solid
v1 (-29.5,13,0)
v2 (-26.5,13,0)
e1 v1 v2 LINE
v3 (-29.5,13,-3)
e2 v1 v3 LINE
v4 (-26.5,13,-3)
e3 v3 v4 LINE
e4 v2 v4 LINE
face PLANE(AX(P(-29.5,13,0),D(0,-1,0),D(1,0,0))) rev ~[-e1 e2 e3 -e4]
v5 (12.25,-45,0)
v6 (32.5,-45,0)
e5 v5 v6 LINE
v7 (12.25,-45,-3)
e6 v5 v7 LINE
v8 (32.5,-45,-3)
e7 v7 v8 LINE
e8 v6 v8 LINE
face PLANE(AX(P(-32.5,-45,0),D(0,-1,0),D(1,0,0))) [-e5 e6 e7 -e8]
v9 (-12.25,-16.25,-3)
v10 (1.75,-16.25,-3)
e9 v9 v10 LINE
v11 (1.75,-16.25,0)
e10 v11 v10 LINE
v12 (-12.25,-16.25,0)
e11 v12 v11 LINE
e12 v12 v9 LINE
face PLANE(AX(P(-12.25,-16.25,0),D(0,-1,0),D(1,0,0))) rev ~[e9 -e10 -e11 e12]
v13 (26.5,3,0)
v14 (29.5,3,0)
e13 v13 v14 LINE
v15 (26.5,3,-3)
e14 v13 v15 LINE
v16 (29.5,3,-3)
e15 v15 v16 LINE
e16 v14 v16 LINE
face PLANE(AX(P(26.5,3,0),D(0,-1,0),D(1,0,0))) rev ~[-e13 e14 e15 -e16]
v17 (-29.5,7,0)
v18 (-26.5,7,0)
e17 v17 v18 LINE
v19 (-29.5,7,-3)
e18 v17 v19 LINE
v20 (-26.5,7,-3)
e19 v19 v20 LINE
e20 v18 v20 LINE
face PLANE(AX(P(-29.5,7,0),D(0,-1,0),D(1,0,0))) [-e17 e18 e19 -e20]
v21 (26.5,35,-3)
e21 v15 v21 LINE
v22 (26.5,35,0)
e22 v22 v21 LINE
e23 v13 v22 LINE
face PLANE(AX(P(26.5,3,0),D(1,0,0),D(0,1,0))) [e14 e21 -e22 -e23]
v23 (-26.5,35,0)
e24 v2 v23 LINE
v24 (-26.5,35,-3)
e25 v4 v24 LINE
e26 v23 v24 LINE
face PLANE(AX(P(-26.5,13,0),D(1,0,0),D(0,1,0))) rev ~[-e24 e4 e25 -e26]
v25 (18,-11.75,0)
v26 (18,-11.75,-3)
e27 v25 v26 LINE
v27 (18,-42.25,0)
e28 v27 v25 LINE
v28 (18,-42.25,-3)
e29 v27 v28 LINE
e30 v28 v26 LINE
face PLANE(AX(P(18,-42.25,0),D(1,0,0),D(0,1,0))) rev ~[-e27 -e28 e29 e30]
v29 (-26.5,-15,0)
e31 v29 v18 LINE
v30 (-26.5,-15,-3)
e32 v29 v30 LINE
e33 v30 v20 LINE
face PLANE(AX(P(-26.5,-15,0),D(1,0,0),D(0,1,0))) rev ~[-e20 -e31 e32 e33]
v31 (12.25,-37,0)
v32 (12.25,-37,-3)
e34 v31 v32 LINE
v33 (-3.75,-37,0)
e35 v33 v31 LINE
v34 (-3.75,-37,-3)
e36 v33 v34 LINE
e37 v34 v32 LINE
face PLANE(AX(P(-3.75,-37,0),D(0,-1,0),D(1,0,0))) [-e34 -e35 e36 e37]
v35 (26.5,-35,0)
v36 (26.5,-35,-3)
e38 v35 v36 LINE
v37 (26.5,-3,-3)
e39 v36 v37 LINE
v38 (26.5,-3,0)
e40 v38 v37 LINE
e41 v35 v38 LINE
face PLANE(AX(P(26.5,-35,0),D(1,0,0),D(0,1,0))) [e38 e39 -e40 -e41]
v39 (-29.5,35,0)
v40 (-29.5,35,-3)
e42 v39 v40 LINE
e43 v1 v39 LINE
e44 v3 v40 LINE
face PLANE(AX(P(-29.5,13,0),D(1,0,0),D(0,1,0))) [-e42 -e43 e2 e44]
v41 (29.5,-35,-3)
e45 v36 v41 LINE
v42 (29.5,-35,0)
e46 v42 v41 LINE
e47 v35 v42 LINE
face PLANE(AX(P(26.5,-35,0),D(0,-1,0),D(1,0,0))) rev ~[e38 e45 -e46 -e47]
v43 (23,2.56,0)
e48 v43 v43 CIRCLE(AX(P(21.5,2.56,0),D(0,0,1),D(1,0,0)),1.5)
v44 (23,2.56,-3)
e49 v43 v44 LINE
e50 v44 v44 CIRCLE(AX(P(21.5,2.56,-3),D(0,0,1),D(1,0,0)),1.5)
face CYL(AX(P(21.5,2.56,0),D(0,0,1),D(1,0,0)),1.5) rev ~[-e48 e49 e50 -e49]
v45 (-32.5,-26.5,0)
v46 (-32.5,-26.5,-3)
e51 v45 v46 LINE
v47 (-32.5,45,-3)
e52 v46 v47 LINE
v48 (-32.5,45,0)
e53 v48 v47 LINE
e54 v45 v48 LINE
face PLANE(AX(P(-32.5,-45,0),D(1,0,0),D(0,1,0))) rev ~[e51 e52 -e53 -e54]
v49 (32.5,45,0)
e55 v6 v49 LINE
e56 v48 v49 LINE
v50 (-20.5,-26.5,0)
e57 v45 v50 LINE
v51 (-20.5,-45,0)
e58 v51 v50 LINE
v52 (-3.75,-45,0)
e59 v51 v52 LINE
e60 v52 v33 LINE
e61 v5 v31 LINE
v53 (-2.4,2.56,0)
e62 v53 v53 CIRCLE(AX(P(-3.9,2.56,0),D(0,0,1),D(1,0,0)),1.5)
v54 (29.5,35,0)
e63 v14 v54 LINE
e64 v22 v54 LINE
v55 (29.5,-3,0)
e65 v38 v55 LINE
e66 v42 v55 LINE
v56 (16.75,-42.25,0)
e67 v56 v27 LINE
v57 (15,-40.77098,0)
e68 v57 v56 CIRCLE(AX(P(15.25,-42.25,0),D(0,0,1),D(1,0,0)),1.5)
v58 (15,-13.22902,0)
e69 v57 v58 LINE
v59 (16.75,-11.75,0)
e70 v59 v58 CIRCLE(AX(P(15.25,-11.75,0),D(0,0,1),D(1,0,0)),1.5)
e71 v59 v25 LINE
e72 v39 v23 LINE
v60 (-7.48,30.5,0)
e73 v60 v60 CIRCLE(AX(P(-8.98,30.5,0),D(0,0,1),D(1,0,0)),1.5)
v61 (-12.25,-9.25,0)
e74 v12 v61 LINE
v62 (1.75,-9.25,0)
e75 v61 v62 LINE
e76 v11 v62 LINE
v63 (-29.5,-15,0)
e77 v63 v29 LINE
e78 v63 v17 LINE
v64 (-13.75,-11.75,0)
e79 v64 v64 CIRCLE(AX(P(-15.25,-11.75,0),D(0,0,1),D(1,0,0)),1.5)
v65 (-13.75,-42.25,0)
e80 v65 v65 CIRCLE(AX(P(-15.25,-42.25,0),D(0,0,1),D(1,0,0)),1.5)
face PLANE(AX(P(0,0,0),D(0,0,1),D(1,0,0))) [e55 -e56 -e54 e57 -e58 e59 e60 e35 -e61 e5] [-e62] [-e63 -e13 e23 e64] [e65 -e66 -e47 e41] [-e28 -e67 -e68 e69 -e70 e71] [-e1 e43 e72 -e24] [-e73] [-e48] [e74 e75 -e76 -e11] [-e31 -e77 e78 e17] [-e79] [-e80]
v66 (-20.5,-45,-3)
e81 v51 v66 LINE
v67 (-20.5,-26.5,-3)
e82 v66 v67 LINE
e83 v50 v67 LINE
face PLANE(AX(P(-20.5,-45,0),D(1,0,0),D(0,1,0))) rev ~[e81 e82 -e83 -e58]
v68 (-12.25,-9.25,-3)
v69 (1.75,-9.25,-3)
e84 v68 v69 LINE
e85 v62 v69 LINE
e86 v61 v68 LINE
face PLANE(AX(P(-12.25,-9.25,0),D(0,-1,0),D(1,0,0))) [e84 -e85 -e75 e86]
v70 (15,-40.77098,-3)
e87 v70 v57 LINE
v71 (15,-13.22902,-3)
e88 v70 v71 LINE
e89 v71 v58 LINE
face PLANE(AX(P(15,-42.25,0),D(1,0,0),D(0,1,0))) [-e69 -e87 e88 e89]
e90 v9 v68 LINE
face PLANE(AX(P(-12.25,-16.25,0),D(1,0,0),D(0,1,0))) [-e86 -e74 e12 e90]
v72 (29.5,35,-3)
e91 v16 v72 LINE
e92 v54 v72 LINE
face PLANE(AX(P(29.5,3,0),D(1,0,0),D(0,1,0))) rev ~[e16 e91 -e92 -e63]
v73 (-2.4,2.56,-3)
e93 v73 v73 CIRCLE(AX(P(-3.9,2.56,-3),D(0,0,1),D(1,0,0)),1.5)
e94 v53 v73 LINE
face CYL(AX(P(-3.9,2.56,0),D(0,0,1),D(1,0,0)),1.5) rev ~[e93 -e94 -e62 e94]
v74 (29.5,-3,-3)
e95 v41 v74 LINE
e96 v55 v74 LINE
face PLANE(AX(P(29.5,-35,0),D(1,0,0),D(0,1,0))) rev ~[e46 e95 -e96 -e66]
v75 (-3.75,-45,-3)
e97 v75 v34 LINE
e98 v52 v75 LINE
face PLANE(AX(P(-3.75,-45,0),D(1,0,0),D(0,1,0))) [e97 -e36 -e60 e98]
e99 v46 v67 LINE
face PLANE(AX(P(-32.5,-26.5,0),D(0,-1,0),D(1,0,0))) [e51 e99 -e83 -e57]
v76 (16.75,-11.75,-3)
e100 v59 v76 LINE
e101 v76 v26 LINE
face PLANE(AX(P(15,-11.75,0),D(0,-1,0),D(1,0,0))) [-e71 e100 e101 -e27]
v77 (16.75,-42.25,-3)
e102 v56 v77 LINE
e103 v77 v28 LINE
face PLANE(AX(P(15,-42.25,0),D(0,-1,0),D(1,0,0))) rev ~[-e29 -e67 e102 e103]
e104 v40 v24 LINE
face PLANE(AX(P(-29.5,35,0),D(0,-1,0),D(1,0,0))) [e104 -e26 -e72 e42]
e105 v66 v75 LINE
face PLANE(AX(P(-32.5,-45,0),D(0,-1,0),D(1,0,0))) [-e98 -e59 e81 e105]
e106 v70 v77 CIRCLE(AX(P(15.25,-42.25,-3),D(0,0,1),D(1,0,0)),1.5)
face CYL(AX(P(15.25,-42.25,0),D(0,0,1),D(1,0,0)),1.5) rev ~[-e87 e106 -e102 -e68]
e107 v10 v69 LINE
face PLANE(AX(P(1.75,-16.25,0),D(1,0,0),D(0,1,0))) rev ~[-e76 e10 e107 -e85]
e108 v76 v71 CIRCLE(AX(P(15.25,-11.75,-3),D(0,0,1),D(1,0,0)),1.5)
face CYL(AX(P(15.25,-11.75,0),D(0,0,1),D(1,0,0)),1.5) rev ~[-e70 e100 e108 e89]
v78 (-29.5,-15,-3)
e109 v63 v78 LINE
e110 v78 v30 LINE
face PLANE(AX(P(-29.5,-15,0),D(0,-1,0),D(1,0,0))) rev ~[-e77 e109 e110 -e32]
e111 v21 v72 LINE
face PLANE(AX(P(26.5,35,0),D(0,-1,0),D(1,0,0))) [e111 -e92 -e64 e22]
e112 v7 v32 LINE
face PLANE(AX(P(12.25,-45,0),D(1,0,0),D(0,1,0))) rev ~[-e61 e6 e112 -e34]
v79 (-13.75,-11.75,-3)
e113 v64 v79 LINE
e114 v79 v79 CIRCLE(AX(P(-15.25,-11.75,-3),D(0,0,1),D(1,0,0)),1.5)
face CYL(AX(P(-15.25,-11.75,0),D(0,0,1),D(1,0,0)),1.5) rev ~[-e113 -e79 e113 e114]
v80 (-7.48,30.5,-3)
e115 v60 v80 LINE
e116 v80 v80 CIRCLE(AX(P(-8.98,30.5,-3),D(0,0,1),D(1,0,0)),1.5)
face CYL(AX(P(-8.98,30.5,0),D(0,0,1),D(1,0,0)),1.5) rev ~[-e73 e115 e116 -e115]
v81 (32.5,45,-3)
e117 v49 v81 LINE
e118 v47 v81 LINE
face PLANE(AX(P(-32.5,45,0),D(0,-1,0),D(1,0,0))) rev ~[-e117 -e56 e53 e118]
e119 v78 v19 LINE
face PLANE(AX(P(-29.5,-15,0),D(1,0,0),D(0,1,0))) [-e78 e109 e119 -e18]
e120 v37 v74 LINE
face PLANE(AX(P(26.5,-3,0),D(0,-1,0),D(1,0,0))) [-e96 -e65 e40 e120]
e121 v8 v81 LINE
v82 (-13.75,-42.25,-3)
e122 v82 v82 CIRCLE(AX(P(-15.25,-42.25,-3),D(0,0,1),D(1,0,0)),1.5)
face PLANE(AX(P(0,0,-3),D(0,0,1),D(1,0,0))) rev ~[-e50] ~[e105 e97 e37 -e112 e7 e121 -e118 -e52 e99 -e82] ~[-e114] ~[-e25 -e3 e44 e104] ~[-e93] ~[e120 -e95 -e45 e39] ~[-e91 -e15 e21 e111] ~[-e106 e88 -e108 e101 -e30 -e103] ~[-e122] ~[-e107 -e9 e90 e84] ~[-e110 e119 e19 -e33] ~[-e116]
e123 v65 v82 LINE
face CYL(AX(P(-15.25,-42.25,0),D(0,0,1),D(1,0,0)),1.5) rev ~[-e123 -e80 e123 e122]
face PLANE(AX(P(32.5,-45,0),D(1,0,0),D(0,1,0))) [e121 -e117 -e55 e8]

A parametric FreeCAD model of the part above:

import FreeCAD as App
import Part
import Sketcher


def add_polygon(sketch, points):
    """Adds a closed chain of lines whose ends are joined by coincident constraints."""
    first, n = sketch.GeometryCount, len(points)
    for a, b in zip(points, points[1:] + points[:1]):
        sketch.addGeometry(Part.LineSegment(App.Vector(*a, 0), App.Vector(*b, 0)), False)
    for i in range(n):
        sketch.addConstraint(Sketcher.Constraint("Coincident", first + i, 2, first + (i + 1) % n, 1))

doc = App.newDocument("Part")
body = doc.addObject("PartDesign::Body", "Body")

# Sketch on XY plane
sketch1 = body.newObject("Sketcher::SketchObject", "Sketch")
sketch1.AttachmentSupport = (doc.getObject("XY_Plane"), [""])
sketch1.MapMode = "FlatFace"
add_polygon(sketch1, [(-32.5, 45), (-32.5, -45), (32.5, -45), (32.5, 45)])  # lines 0-3
sketch1.addConstraint(Sketcher.Constraint("Vertical", 0))
sketch1.addConstraint(Sketcher.Constraint("Horizontal", 1))
sketch1.addConstraint(Sketcher.Constraint("Vertical", 2))
sketch1.addConstraint(Sketcher.Constraint("Horizontal", 3))
sketch1.addConstraint(Sketcher.Constraint("Symmetric", 0, 2, 2, 2, -1, 1))
sketch1.addConstraint(Sketcher.Constraint("DistanceX", 1, 1, 1, 2, 65.0))
sketch1.addConstraint(Sketcher.Constraint("DistanceY", 0, 2, 0, 1, 90.0))
pad1 = body.newObject("PartDesign::Pad", "Pad")
pad1.Profile = sketch1
pad1.Length = 3
pad1.Reversed = True

# Sketch on XY plane
sketch2 = body.newObject("Sketcher::SketchObject", "Sketch001")
sketch2.AttachmentSupport = (doc.getObject("XY_Plane"), [""])
sketch2.MapMode = "FlatFace"
sketch2.addGeometry(Part.Circle(App.Vector(-8.98, 30.5, 0), App.Vector(0, 0, 1), 1.5), False)
sketch2.addGeometry(Part.Circle(App.Vector(-3.9, 2.56, 0), App.Vector(0, 0, 1), 1.5), False)
sketch2.addGeometry(Part.Circle(App.Vector(21.5, 2.56, 0), App.Vector(0, 0, 1), 1.5), False)
sketch2.addConstraint(Sketcher.Constraint("Equal", 0, 1))
sketch2.addConstraint(Sketcher.Constraint("Equal", 1, 2))
sketch2.addConstraint(Sketcher.Constraint("Horizontal", 1, 3, 2, 3))
sketch2.addConstraint(Sketcher.Constraint("Diameter", 0, 3.0))
sketch2.addConstraint(Sketcher.Constraint("DistanceY", -1, 1, 0, 3, 30.5))
sketch2.addConstraint(Sketcher.Constraint("DistanceX", 1, 3, -1, 1, 3.9))
sketch2.addConstraint(Sketcher.Constraint("DistanceX", -1, 1, 2, 3, 21.5))
sketch2.addConstraint(Sketcher.Constraint("DistanceX", 0, 3, -1, 1, 8.98))
sketch2.addConstraint(Sketcher.Constraint("DistanceY", -1, 1, 1, 3, 2.56))
pocket1 = body.newObject("PartDesign::Pocket", "Pocket")
pocket1.Profile = sketch2
pocket1.Length = 3

# Sketch on XY plane
sketch3 = body.newObject("Sketcher::SketchObject", "Sketch002")
sketch3.AttachmentSupport = (doc.getObject("XY_Plane"), [""])
sketch3.MapMode = "FlatFace"
sketch3.addGeometry(Part.Circle(App.Vector(-15.25, -42.25, 0), App.Vector(0, 0, 1), 1.5), False)
sketch3.addGeometry(Part.Circle(App.Vector(-15.25, -11.75, 0), App.Vector(0, 0, 1), 1.5), False)
sketch3.addGeometry(Part.Circle(App.Vector(15.25, -42.25, 0), App.Vector(0, 0, 1), 1.5), False)
sketch3.addGeometry(Part.Circle(App.Vector(15.25, -11.75, 0), App.Vector(0, 0, 1), 1.5), False)
sketch3.addConstraint(Sketcher.Constraint("Equal", 0, 1))
sketch3.addConstraint(Sketcher.Constraint("Equal", 1, 2))
sketch3.addConstraint(Sketcher.Constraint("Equal", 2, 3))
sketch3.addConstraint(Sketcher.Constraint("Symmetric", 0, 3, 2, 3, -2))
sketch3.addConstraint(Sketcher.Constraint("Symmetric", 1, 3, 3, 3, -2))
sketch3.addConstraint(Sketcher.Constraint("Vertical", 0, 3, 1, 3))
sketch3.addConstraint(Sketcher.Constraint("Diameter", 0, 3.0))
sketch3.addConstraint(Sketcher.Constraint("DistanceY", 0, 3, 1, 3, 30.5))
sketch3.addConstraint(Sketcher.Constraint("DistanceX", 0, 3, 2, 3, 30.5))
sketch3.addConstraint(Sketcher.Constraint("DistanceY", 0, 3, -1, 1, 42.25))
pocket2 = body.newObject("PartDesign::Pocket", "Pocket001")
pocket2.Profile = sketch3
pocket2.Type = "ThroughAll"

# Sketch on XY plane
sketch4 = body.newObject("Sketcher::SketchObject", "Sketch003")
sketch4.AttachmentSupport = (doc.getObject("XY_Plane"), [""])
sketch4.MapMode = "FlatFace"
add_polygon(sketch4, [(26.5, -3), (26.5, -35), (29.5, -35), (29.5, -3)])  # lines 0-3
add_polygon(sketch4, [(26.5, 35), (26.5, 3), (29.5, 3), (29.5, 35)])  # lines 4-7
sketch4.addConstraint(Sketcher.Constraint("Vertical", 0))
sketch4.addConstraint(Sketcher.Constraint("Horizontal", 1))
sketch4.addConstraint(Sketcher.Constraint("Vertical", 2))
sketch4.addConstraint(Sketcher.Constraint("Horizontal", 3))
sketch4.addConstraint(Sketcher.Constraint("Vertical", 4))
sketch4.addConstraint(Sketcher.Constraint("Horizontal", 5))
sketch4.addConstraint(Sketcher.Constraint("Vertical", 6))
sketch4.addConstraint(Sketcher.Constraint("Horizontal", 7))
sketch4.addConstraint(Sketcher.Constraint("Symmetric", 3, 2, 4, 2, -1))
sketch4.addConstraint(Sketcher.Constraint("Symmetric", 1, 2, 6, 2, -1))
sketch4.addConstraint(Sketcher.Constraint("DistanceX", 1, 1, 1, 2, 3.0))
sketch4.addConstraint(Sketcher.Constraint("DistanceY", 0, 2, 0, 1, 32.0))
sketch4.addConstraint(Sketcher.Constraint("DistanceY", 0, 2, -1, 1, 35.0))
sketch4.addConstraint(Sketcher.Constraint("DistanceX", -1, 1, 0, 2, 26.5))
pocket3 = body.newObject("PartDesign::Pocket", "Pocket002")
pocket3.Profile = sketch4
pocket3.Type = "ThroughAll"

# Sketch on XY plane
sketch5 = body.newObject("Sketcher::SketchObject", "Sketch004")
sketch5.AttachmentSupport = (doc.getObject("XY_Plane"), [""])
sketch5.MapMode = "FlatFace"
add_polygon(sketch5, [(-29.5, 7), (-29.5, -15), (-26.5, -15), (-26.5, 7)])  # lines 0-3
add_polygon(sketch5, [(-29.5, 35), (-29.5, 13), (-26.5, 13), (-26.5, 35)])  # lines 4-7
sketch5.addConstraint(Sketcher.Constraint("Vertical", 0))
sketch5.addConstraint(Sketcher.Constraint("Horizontal", 1))
sketch5.addConstraint(Sketcher.Constraint("Vertical", 2))
sketch5.addConstraint(Sketcher.Constraint("Horizontal", 3))
sketch5.addConstraint(Sketcher.Constraint("Vertical", 4))
sketch5.addConstraint(Sketcher.Constraint("Horizontal", 5))
sketch5.addConstraint(Sketcher.Constraint("Vertical", 6))
sketch5.addConstraint(Sketcher.Constraint("Horizontal", 7))
sketch5.addConstraint(Sketcher.Constraint("Vertical", 3, 2, 4, 2))
sketch5.addConstraint(Sketcher.Constraint("Vertical", 2, 2, 5, 2))
sketch5.addConstraint(Sketcher.Constraint("Equal", 2, 4))
sketch5.addConstraint(Sketcher.Constraint("DistanceX", 1, 1, 1, 2, 3.0))
sketch5.addConstraint(Sketcher.Constraint("DistanceY", 0, 2, 0, 1, 22.0))
sketch5.addConstraint(Sketcher.Constraint("DistanceY", 0, 2, -1, 1, 15.0))
sketch5.addConstraint(Sketcher.Constraint("DistanceY", -1, 1, 4, 2, 13.0))
sketch5.addConstraint(Sketcher.Constraint("DistanceX", 0, 2, -1, 1, 29.5))
pocket4 = body.newObject("PartDesign::Pocket", "Pocket003")
pocket4.Profile = sketch5
pocket4.Type = "ThroughAll"

# Sketch on XY plane
sketch6 = body.newObject("Sketcher::SketchObject", "Sketch005")
sketch6.AttachmentSupport = (doc.getObject("XY_Plane"), [""])
sketch6.MapMode = "FlatFace"
add_polygon(sketch6, [(15, -11.75), (15, -42.25), (18, -42.25), (18, -11.75)])  # lines 0-3
add_polygon(sketch6, [(-12.25, -9.25), (-12.25, -16.25), (1.75, -16.25), (1.75, -9.25)])  # lines 4-7
add_polygon(sketch6, [(-3.75, -37), (-3.75, -45), (12.25, -45), (12.25, -37)])  # lines 8-11
sketch6.addConstraint(Sketcher.Constraint("Vertical", 0))
sketch6.addConstraint(Sketcher.Constraint("Horizontal", 1))
sketch6.addConstraint(Sketcher.Constraint("Vertical", 2))
sketch6.addConstraint(Sketcher.Constraint("Horizontal", 3))
sketch6.addConstraint(Sketcher.Constraint("Vertical", 4))
sketch6.addConstraint(Sketcher.Constraint("Horizontal", 5))
sketch6.addConstraint(Sketcher.Constraint("Vertical", 6))
sketch6.addConstraint(Sketcher.Constraint("Horizontal", 7))
sketch6.addConstraint(Sketcher.Constraint("Vertical", 8))
sketch6.addConstraint(Sketcher.Constraint("Horizontal", 9))
sketch6.addConstraint(Sketcher.Constraint("Vertical", 10))
sketch6.addConstraint(Sketcher.Constraint("Horizontal", 11))
sketch6.addConstraint(Sketcher.Constraint("DistanceX", 1, 1, 1, 2, 3.0))
sketch6.addConstraint(Sketcher.Constraint("DistanceX", 5, 1, 5, 2, 14.0))
sketch6.addConstraint(Sketcher.Constraint("DistanceX", 9, 1, 9, 2, 16.0))
sketch6.addConstraint(Sketcher.Constraint("DistanceY", 4, 2, 4, 1, 7.0))
sketch6.addConstraint(Sketcher.Constraint("DistanceY", 8, 2, 8, 1, 8.0))
sketch6.addConstraint(Sketcher.Constraint("DistanceY", 0, 2, 0, 1, 30.5))
sketch6.addConstraint(Sketcher.Constraint("DistanceX", -1, 1, 0, 2, 15.0))
sketch6.addConstraint(Sketcher.Constraint("DistanceY", 8, 2, -1, 1, 45.0))
sketch6.addConstraint(Sketcher.Constraint("DistanceY", 0, 2, 4, 2, 26.0))
sketch6.addConstraint(Sketcher.Constraint("DistanceX", 8, 2, 5, 2, 5.5))
sketch6.addConstraint(Sketcher.Constraint("DistanceY", 0, 2, -1, 1, 42.25))
sketch6.addConstraint(Sketcher.Constraint("DistanceX", 4, 2, -1, 1, 12.25))
pocket5 = body.newObject("PartDesign::Pocket", "Pocket004")
pocket5.Profile = sketch6
pocket5.Type = "ThroughAll"

# Sketch on XY plane
sketch7 = body.newObject("Sketcher::SketchObject", "Sketch006")
sketch7.AttachmentSupport = (doc.getObject("XY_Plane"), [""])
sketch7.MapMode = "FlatFace"
add_polygon(sketch7, [(-32.5, -26.5), (-32.5, -45), (-20.5, -45), (-20.5, -26.5)])  # lines 0-3
sketch7.addConstraint(Sketcher.Constraint("Vertical", 0))
sketch7.addConstraint(Sketcher.Constraint("Horizontal", 1))
sketch7.addConstraint(Sketcher.Constraint("Vertical", 2))
sketch7.addConstraint(Sketcher.Constraint("Horizontal", 3))
sketch7.addConstraint(Sketcher.Constraint("DistanceX", 1, 1, 1, 2, 12.0))
sketch7.addConstraint(Sketcher.Constraint("DistanceY", 0, 2, 0, 1, 18.5))
sketch7.addConstraint(Sketcher.Constraint("DistanceY", 0, 2, -1, 1, 45.0))
sketch7.addConstraint(Sketcher.Constraint("DistanceX", 0, 2, -1, 1, 32.5))
pocket6 = body.newObject("PartDesign::Pocket", "Pocket005")
pocket6.Profile = sketch7
pocket6.Type = "ThroughAll"

doc.recompute()
